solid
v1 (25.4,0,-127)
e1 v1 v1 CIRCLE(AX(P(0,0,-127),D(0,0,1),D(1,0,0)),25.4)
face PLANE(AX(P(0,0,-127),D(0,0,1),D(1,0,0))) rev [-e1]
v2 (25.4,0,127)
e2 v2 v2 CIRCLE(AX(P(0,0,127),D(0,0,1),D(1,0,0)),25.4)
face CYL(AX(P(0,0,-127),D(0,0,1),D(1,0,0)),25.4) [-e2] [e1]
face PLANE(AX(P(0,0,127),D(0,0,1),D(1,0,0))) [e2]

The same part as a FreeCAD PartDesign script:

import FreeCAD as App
import Part
import Sketcher
Q = App.Units.Quantity

doc = App.newDocument("Part")
body = doc.addObject("PartDesign::Body", "Body")

# Sketch on XY plane
sketch1 = doc.addObject("Sketcher::SketchObject", "Sketch")
body.addObject(sketch1)
sketch1.AttachmentSupport = (doc.XY_Plane, [""])
sketch1.MapMode = "FlatFace"
sketch1.addGeometry(Part.Circle(App.Vector(0, 0, 0), App.Vector(0, 0, 1), 25.4), False)
sketch1.addConstraint([
    Sketcher.Constraint("Coincident", 0, 3, -1, 1),
    Sketcher.Constraint("Diameter", 0, Q("2 in")),
])
pad1 = doc.addObject("PartDesign::Pad", "Pad")
body.addObject(pad1)
pad1.Profile = sketch1
pad1.Type = "TwoLengths"
pad1.Length = Q("5 in")
pad1.Length2 = Q("5 in")

doc.recompute()
